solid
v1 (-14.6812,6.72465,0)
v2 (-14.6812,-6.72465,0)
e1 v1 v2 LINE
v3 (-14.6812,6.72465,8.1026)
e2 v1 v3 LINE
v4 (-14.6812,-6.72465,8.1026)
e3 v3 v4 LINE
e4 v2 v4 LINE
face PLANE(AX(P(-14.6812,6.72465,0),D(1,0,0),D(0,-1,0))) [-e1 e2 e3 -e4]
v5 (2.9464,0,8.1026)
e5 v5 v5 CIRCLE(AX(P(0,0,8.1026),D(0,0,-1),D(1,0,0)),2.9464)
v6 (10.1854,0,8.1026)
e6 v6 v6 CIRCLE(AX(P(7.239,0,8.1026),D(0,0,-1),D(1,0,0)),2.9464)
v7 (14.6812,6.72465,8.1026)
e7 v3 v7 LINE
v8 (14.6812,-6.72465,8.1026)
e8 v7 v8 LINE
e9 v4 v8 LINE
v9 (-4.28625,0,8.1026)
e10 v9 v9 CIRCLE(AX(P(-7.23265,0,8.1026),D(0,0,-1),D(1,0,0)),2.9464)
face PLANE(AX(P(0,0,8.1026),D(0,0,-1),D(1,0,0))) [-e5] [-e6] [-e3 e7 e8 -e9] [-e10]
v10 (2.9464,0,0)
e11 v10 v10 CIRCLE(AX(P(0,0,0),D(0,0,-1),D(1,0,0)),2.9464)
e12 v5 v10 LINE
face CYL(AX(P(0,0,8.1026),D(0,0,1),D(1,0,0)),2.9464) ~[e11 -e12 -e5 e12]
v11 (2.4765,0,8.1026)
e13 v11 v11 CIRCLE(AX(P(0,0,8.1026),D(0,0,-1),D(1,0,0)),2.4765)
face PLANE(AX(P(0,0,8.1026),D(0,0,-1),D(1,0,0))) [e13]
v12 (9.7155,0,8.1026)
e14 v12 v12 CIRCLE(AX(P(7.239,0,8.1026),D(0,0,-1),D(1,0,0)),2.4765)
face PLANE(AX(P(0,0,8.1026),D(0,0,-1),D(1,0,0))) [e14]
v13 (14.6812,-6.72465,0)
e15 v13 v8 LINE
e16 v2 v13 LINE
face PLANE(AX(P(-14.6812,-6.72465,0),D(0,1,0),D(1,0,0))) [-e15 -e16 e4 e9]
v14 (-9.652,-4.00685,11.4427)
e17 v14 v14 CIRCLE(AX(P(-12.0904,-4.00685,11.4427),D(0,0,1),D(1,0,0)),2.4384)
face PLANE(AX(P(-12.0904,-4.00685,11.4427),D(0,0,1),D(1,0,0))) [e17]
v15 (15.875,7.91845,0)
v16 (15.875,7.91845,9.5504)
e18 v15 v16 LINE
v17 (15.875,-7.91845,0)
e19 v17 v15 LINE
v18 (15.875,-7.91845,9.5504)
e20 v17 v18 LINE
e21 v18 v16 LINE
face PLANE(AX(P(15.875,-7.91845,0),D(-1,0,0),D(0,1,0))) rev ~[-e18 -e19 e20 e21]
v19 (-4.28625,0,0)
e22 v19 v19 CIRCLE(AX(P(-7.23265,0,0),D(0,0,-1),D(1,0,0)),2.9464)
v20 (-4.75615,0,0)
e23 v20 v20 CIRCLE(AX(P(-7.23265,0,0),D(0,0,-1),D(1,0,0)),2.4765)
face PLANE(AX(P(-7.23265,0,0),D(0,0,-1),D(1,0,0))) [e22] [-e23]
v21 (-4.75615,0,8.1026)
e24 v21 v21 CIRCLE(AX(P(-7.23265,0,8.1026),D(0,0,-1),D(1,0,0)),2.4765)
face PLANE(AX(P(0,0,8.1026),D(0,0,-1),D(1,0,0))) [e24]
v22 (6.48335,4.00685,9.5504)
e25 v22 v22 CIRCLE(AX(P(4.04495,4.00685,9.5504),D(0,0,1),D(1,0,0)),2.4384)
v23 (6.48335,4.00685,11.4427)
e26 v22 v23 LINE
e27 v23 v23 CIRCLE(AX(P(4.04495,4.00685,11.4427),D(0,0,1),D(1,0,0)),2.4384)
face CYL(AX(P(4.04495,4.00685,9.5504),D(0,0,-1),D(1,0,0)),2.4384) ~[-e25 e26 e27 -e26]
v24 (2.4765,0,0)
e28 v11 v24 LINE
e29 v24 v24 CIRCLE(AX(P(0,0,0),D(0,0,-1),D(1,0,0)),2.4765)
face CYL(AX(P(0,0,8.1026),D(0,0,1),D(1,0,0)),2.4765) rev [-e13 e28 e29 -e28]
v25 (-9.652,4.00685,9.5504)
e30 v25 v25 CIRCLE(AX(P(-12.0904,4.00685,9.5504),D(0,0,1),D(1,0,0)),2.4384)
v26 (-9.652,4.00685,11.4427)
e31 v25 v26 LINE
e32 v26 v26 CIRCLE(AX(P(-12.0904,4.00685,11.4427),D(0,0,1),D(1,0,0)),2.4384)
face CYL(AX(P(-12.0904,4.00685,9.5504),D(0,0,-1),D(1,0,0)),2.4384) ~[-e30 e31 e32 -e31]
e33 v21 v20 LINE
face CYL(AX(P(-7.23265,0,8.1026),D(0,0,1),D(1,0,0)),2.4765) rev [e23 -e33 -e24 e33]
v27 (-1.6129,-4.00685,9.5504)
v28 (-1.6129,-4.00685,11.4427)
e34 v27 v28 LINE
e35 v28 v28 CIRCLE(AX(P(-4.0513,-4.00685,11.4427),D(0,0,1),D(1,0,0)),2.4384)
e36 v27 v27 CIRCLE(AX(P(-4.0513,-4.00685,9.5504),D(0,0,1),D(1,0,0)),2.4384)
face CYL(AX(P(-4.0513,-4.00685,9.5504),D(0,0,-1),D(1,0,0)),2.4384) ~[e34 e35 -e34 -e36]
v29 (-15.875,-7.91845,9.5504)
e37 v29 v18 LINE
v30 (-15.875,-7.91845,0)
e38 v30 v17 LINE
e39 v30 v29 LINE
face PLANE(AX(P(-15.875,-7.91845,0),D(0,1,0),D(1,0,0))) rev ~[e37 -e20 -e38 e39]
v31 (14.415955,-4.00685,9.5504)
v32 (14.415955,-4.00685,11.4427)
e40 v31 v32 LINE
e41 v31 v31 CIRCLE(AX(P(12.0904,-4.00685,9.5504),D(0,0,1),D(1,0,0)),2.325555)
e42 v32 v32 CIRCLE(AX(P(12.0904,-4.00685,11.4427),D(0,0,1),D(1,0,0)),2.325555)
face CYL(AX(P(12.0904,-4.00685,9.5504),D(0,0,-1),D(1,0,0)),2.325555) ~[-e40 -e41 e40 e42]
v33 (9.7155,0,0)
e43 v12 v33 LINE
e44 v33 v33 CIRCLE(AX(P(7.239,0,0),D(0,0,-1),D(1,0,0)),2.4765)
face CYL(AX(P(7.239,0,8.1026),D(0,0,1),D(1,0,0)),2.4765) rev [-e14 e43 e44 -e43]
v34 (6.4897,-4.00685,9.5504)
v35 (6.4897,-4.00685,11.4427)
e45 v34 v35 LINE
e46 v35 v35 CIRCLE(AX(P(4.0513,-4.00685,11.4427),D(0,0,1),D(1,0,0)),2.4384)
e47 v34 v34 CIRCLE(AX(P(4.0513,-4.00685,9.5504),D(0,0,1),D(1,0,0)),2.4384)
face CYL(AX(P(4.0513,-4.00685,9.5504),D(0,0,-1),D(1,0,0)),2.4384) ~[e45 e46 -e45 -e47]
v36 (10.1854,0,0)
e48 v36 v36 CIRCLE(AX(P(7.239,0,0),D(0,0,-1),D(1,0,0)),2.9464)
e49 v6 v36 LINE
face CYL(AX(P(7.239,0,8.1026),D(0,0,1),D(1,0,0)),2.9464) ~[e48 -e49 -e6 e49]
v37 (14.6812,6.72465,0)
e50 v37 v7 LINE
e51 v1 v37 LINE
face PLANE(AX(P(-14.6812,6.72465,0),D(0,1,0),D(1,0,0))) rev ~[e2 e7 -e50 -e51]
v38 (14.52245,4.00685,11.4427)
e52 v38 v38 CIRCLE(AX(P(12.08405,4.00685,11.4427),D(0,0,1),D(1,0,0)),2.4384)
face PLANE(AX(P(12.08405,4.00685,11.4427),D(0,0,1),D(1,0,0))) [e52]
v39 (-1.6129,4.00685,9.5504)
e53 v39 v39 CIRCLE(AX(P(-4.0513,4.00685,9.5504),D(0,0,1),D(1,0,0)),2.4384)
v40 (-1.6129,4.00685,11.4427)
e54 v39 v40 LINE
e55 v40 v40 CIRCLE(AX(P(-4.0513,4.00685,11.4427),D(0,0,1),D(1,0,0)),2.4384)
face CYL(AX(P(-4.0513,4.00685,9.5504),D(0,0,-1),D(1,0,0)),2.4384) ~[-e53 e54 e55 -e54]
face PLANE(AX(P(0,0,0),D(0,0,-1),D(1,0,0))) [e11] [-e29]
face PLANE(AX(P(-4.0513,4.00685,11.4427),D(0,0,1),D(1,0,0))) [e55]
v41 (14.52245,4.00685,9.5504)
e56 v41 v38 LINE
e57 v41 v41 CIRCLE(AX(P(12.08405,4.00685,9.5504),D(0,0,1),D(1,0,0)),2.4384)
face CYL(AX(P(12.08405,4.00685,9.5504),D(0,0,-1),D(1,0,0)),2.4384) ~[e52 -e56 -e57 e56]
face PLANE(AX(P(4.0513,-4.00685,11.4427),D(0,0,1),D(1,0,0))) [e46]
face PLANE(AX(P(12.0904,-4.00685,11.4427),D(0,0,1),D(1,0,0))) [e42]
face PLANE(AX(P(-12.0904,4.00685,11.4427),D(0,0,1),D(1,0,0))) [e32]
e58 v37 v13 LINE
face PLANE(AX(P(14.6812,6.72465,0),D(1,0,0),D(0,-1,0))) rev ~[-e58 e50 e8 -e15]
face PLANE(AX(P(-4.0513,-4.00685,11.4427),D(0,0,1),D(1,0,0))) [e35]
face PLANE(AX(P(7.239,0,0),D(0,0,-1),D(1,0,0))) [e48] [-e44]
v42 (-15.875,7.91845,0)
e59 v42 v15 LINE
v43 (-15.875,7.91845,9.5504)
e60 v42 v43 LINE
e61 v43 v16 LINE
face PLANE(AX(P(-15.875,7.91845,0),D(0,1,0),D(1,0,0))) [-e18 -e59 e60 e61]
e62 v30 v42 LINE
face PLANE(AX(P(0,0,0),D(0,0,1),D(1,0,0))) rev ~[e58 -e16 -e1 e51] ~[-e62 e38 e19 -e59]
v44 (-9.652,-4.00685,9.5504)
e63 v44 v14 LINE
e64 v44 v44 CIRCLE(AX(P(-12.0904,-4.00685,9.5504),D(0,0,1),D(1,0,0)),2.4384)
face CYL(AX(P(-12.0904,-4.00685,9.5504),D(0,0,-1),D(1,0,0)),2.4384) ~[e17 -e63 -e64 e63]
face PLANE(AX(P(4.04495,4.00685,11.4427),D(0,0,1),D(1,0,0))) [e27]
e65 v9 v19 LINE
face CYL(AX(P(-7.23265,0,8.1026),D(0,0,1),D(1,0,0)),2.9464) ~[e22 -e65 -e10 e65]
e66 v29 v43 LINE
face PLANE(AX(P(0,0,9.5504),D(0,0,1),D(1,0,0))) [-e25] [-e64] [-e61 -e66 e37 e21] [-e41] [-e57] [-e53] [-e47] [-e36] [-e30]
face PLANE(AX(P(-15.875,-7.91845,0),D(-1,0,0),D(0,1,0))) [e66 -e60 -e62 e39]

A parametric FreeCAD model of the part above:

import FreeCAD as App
import Part
import Sketcher
Q = App.Units.Quantity

doc = App.newDocument("Part")
body = doc.addObject("PartDesign::Body", "Body")

# Sketch on XY plane
sketch1 = body.newObject("Sketcher::SketchObject", "Sketch")
sketch1.AttachmentSupport = (doc.getObject("XY_Plane"), [""])
sketch1.MapMode = "FlatFace"
sketch1.addGeometry([
    Part.LineSegment(App.Vector(-16, 8, 0), App.Vector(-16, -8, 0)),
    Part.LineSegment(App.Vector(-16, -8, 0), App.Vector(16, -8, 0)),
    Part.LineSegment(App.Vector(16, -8, 0), App.Vector(16, 8, 0)),
    Part.LineSegment(App.Vector(16, 8, 0), App.Vector(-16, 8, 0)),
], False)
sketch1.addConstraint([
    Sketcher.Constraint("Coincident", 0, 2, 1, 1),
    Sketcher.Constraint("Coincident", 1, 2, 2, 1),
    Sketcher.Constraint("Coincident", 2, 2, 3, 1),
    Sketcher.Constraint("Coincident", 3, 2, 0, 1),
    Sketcher.Constraint("Vertical", 0),
    Sketcher.Constraint("Horizontal", 1),
    Sketcher.Constraint("Vertical", 2),
    Sketcher.Constraint("Horizontal", 3),
    Sketcher.Constraint("Symmetric", 0, 2, 2, 2, -1, 1),
    Sketcher.Constraint("DistanceX", 1, 1, 1, 2, Q("1.25 in")),
    Sketcher.Constraint("DistanceY", 0, 2, 0, 1, Q("0.6235 in")),
])
pad1 = body.newObject("PartDesign::Pad", "Pad")
pad1.Profile = sketch1
pad1.Length = Q("0.376 in")

# Sketch on XY plane
sketch2 = body.newObject("Sketcher::SketchObject", "Sketch001")
sketch2.AttachmentSupport = (doc.getObject("XY_Plane"), [""])
sketch2.MapMode = "FlatFace"
sketch2.addGeometry([
    Part.LineSegment(App.Vector(-15, -7, 0), App.Vector(-15, 7, 0)),
    Part.LineSegment(App.Vector(-15, 7, 0), App.Vector(15, 7, 0)),
    Part.LineSegment(App.Vector(15, 7, 0), App.Vector(15, -7, 0)),
    Part.LineSegment(App.Vector(15, -7, 0), App.Vector(-15, -7, 0)),
], False)
sketch2.addConstraint([
    Sketcher.Constraint("Coincident", 0, 2, 1, 1),
    Sketcher.Constraint("Coincident", 1, 2, 2, 1),
    Sketcher.Constraint("Coincident", 2, 2, 3, 1),
    Sketcher.Constraint("Coincident", 3, 2, 0, 1),
    Sketcher.Constraint("Vertical", 0),
    Sketcher.Constraint("Horizontal", 1),
    Sketcher.Constraint("Vertical", 2),
    Sketcher.Constraint("Horizontal", 3),
    Sketcher.Constraint("Symmetric", 0, 2, 2, 2, -1, 1),
    Sketcher.Constraint("DistanceX", 1, 1, 1, 2, Q("1.156 in")),
    Sketcher.Constraint("DistanceY", 0, 1, 0, 2, Q("0.5295 in")),
])
pocket1 = body.newObject("PartDesign::Pocket", "Pocket")
pocket1.Profile = sketch2
pocket1.Length = Q("0.319 in")
pocket1.Reversed = True

# Sketch on XY plane
sketch3 = body.newObject("Sketcher::SketchObject", "Sketch002")
sketch3.AttachmentSupport = (doc.getObject("XY_Plane"), [""])
sketch3.MapMode = "FlatFace"
sketch3.AttachmentOffset = App.Placement(App.Vector(0, 0, 0.376 * 25.4), App.Rotation())
sketch3.addGeometry([
    Part.Circle(App.Vector(12.1, 4, 0), App.Vector(0, 0, 1), 2.4),  # 0
    Part.Circle(App.Vector(4, 4, 0), App.Vector(0, 0, 1), 2.4),  # 1
    Part.Circle(App.Vector(-4.1, 4, 0), App.Vector(0, 0, 1), 2.4),  # 2
    Part.Circle(App.Vector(-12.1, 4, 0), App.Vector(0, 0, 1), 2.4),  # 3
    Part.Circle(App.Vector(-12.1, -4, 0), App.Vector(0, 0, 1), 2.4),  # 4
    Part.Circle(App.Vector(-4.1, -4, 0), App.Vector(0, 0, 1), 2.4),  # 5
    Part.Circle(App.Vector(4.1, -4, 0), App.Vector(0, 0, 1), 2.4),  # 6
    Part.Circle(App.Vector(12.1, -4, 0), App.Vector(0, 0, 1), 2.3),  # 7
], False)
sketch3.addConstraint([
    Sketcher.Constraint("Equal", 0, 1),
    Sketcher.Constraint("Equal", 1, 2),
    Sketcher.Constraint("Equal", 2, 3),
    Sketcher.Constraint("Equal", 3, 4),
    Sketcher.Constraint("Equal", 4, 5),
    Sketcher.Constraint("Equal", 5, 6),
    Sketcher.Constraint("Symmetric", 2, 3, 6, 3, -1, 1),
    Sketcher.Constraint("Symmetric", 3, 3, 7, 3, -1, 1),
    Sketcher.Constraint("Symmetric", 5, 3, 6, 3, -2),
    Sketcher.Constraint("Symmetric", 4, 3, 7, 3, -2),
    Sketcher.Constraint("Horizontal", 0, 3, 1, 3),
    Sketcher.Constraint("Horizontal", 1, 3, 2, 3),
    Sketcher.Constraint("Horizontal", 2, 3, 3, 3),
    Sketcher.Constraint("Diameter", 0, Q("0.192 in")),
    Sketcher.Constraint("Diameter", 7, Q("4.65111 mm")),
    Sketcher.Constraint("DistanceX", 3, 3, -1, 1, Q("0.476 in")),
    Sketcher.Constraint("DistanceX", 5, 3, 6, 3, Q("0.319 in")),
    Sketcher.Constraint("DistanceX", 1, 3, 0, 3, Q("0.3165 in")),
    Sketcher.Constraint("DistanceY", 4, 3, 3, 3, Q("0.3155 in")),
    Sketcher.Constraint("DistanceX", -1, 1, 0, 3, Q("12.08405 mm")),
])
pad2 = body.newObject("PartDesign::Pad", "Pad001")
pad2.Profile = sketch3
pad2.Length = Q("0.0745 in")

# Sketch on XY plane
sketch4 = body.newObject("Sketcher::SketchObject", "Sketch003")
sketch4.AttachmentSupport = (doc.getObject("XY_Plane"), [""])
sketch4.MapMode = "FlatFace"
sketch4.AttachmentOffset = App.Placement(App.Vector(0, 0, 0.319 * 25.4), App.Rotation())
sketch4.addGeometry([
    Part.Circle(App.Vector(0, 0, 0), App.Vector(0, 0, 1), 2.9),  # 0
    Part.Circle(App.Vector(0, 0, 0), App.Vector(0, 0, 1), 2.5),  # 1
    Part.Circle(App.Vector(-7.2, 0, 0), App.Vector(0, 0, 1), 2.9),  # 2
    Part.Circle(App.Vector(-7.2, 0, 0), App.Vector(0, 0, 1), 2.5),  # 3
    Part.Circle(App.Vector(7.2, 0, 0), App.Vector(0, 0, 1), 2.9),  # 4
    Part.Circle(App.Vector(7.2, 0, 0), App.Vector(0, 0, 1), 2.5),  # 5
], False)
sketch4.addConstraint([
    Sketcher.Constraint("Coincident", 0, 3, -1, 1),
    Sketcher.Constraint("Coincident", 1, 3, -1, 1),
    Sketcher.Constraint("Coincident", 3, 3, 2, 3),
    Sketcher.Constraint("Coincident", 5, 3, 4, 3),
    Sketcher.Constraint("Equal", 0, 2),
    Sketcher.Constraint("Equal", 1, 3),
    Sketcher.Constraint("Equal", 2, 4),
    Sketcher.Constraint("Equal", 3, 5),
    Sketcher.Constraint("PointOnObject", 2, 3, -1),
    Sketcher.Constraint("PointOnObject", 4, 3, -1),
    Sketcher.Constraint("Diameter", 0, Q("0.232 in")),
    Sketcher.Constraint("Diameter", 1, Q("0.195 in")),
    Sketcher.Constraint("DistanceX", -1, 1, 4, 3, Q("0.285 in")),
    Sketcher.Constraint("DistanceX", 2, 3, -1, 1, Q("7.23265 mm")),
])
pad3 = body.newObject("PartDesign::Pad", "Pad002")
pad3.Profile = sketch4
pad3.Length = Q("0.319 in")
pad3.Reversed = True

doc.recompute()
